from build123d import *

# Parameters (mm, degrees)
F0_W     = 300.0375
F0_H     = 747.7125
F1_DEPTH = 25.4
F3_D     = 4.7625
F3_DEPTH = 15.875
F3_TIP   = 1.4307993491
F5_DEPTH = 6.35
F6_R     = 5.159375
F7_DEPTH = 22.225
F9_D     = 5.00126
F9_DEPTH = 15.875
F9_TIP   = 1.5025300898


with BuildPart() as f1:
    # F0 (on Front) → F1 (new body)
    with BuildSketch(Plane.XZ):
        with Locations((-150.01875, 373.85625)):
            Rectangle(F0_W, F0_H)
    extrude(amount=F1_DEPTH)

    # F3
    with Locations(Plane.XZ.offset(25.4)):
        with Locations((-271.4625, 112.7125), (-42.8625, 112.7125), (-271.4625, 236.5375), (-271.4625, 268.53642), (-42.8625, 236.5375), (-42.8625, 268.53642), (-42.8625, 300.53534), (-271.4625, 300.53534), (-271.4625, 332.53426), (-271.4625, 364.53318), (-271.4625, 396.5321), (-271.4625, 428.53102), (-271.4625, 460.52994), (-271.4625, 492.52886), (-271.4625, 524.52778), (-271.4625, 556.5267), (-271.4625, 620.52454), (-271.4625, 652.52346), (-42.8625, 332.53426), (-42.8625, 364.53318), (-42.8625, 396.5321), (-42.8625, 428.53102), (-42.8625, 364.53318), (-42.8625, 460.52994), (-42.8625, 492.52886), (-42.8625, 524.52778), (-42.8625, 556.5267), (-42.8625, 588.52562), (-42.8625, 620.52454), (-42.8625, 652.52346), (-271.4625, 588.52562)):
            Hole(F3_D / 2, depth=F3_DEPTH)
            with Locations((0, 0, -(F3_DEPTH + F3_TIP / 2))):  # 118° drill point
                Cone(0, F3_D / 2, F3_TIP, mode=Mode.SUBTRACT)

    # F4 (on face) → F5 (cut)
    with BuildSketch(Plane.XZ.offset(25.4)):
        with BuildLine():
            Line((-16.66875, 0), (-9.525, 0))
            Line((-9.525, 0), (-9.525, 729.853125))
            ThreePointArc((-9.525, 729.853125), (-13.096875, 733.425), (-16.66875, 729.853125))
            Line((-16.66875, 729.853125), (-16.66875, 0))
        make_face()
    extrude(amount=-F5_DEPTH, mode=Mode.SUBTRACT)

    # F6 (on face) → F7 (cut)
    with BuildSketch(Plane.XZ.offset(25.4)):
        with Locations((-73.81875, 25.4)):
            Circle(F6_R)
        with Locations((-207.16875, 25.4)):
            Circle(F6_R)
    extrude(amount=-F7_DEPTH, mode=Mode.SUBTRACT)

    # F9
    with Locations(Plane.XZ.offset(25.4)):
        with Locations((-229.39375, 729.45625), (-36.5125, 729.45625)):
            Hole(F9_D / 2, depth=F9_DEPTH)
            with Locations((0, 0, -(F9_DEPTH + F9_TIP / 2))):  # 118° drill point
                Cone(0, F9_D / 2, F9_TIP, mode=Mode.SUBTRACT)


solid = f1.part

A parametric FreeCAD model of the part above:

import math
import FreeCAD as App
import Part
import Sketcher
from FreeCAD import Vector
Q = App.Units.Quantity


def add_polygon(sketch, points):
    """Adds a closed chain of lines whose ends are joined by coincident constraints."""
    first, n = sketch.GeometryCount, len(points)
    for a, b in zip(points, points[1:] + points[:1]):
        sketch.addGeometry(Part.LineSegment(App.Vector(*a, 0), App.Vector(*b, 0)), False)
    for i in range(n):
        sketch.addConstraint(Sketcher.Constraint("Coincident", first + i, 2, first + (i + 1) % n, 1))

doc = App.newDocument("Part")
params = doc.addObject("Spreadsheet::Sheet", "Params")
for row, (alias, value) in enumerate([
    ("sketch1_width", "11.8125 in"),
    ("sketch1_height", "29.4375 in"),
    ("pad1_length", "1 in"),
    ("sketch2_diameter", "0.1875 in"),
    ("hole_diameter", "0.1875 in"),
    ("hole_depth", "0.625 in"),
    ("sketch3_radius", "0.140625 in"),
    ("sketch3_height", "28.734375 in"),
    ("pocket1_length", "0.25 in"),
    ("sketch4_diameter", "0.40625 in"),
    ("pocket2_length", "0.875 in"),
    ("hole2_diameter", "0.1969 in"),
    ("hole2_depth", "0.625 in"),
], start=1):
    params.set(f"A{row}", alias)
    params.set(f"B{row}", "=" + value)
    params.setAlias(f"B{row}", alias)

body = doc.addObject("PartDesign::Body", "Body")

# Sketch on XZ plane
sketch1 = body.newObject("Sketcher::SketchObject", "Sketch")
sketch1.AttachmentSupport = (doc.getObject("XZ_Plane"), [""])
sketch1.MapMode = "FlatFace"
add_polygon(sketch1, [(-300.0375, 747.7125), (-300.0375, 0), (0, 0), (0, 747.7125)])  # lines 0-3
sketch1.addConstraint(Sketcher.Constraint("Vertical", 0))
sketch1.addConstraint(Sketcher.Constraint("Horizontal", 1))
sketch1.addConstraint(Sketcher.Constraint("Vertical", 2))
sketch1.addConstraint(Sketcher.Constraint("Horizontal", 3))
sketch1.addConstraint(Sketcher.Constraint("Coincident", 1, 2, -1, 1))
sketch1.addConstraint(Sketcher.Constraint("DistanceX", 1, 1, 1, 2, Q("11.8125 in")))
sketch1.addConstraint(Sketcher.Constraint("DistanceY", 0, 2, 0, 1, Q("29.4375 in")))
sketch1.setExpression("Constraints[9]", "Params.sketch1_width")
sketch1.setExpression("Constraints[10]", "Params.sketch1_height")
pad1 = body.newObject("PartDesign::Pad", "Pad")
pad1.Profile = sketch1
pad1.setExpression("Length", "Params.pad1_length")

# Sketch on XZ plane
sketch2 = body.newObject("Sketcher::SketchObject", "Sketch001")
sketch2.AttachmentSupport = (doc.getObject("XZ_Plane"), [""])
sketch2.MapMode = "FlatFace"
sketch2.AttachmentOffset = App.Placement(Vector(0, 0, 1 * 25.4), App.Rotation())
sketch2.addGeometry(Part.Circle(Vector(-271.4625, 112.7125, 0), Vector(0, 0, 1), 2.38125), False)
sketch2.addGeometry(Part.Circle(Vector(-42.8625, 112.7125, 0), Vector(0, 0, 1), 2.38125), False)
sketch2.addGeometry(Part.Circle(Vector(-271.4625, 236.5375, 0), Vector(0, 0, 1), 2.38125), False)
sketch2.addGeometry(Part.Circle(Vector(-271.4625, 268.53642, 0), Vector(0, 0, 1), 2.38125), False)
sketch2.addGeometry(Part.Circle(Vector(-42.8625, 236.5375, 0), Vector(0, 0, 1), 2.38125), False)
sketch2.addGeometry(Part.Circle(Vector(-42.8625, 268.53642, 0), Vector(0, 0, 1), 2.38125), False)
sketch2.addGeometry(Part.Circle(Vector(-42.8625, 300.53534, 0), Vector(0, 0, 1), 2.38125), False)
sketch2.addGeometry(Part.Circle(Vector(-271.4625, 300.53534, 0), Vector(0, 0, 1), 2.38125), False)
sketch2.addGeometry(Part.Circle(Vector(-271.4625, 332.53426, 0), Vector(0, 0, 1), 2.38125), False)
sketch2.addGeometry(Part.Circle(Vector(-271.4625, 364.53318, 0), Vector(0, 0, 1), 2.38125), False)
sketch2.addGeometry(Part.Circle(Vector(-271.4625, 396.5321, 0), Vector(0, 0, 1), 2.38125), False)
sketch2.addGeometry(Part.Circle(Vector(-271.4625, 428.53102, 0), Vector(0, 0, 1), 2.38125), False)
sketch2.addGeometry(Part.Circle(Vector(-271.4625, 460.52994, 0), Vector(0, 0, 1), 2.38125), False)
sketch2.addGeometry(Part.Circle(Vector(-271.4625, 492.52886, 0), Vector(0, 0, 1), 2.38125), False)
sketch2.addGeometry(Part.Circle(Vector(-271.4625, 524.52778, 0), Vector(0, 0, 1), 2.38125), False)
sketch2.addGeometry(Part.Circle(Vector(-271.4625, 556.5267, 0), Vector(0, 0, 1), 2.38125), False)
sketch2.addGeometry(Part.Circle(Vector(-271.4625, 620.52454, 0), Vector(0, 0, 1), 2.38125), False)
sketch2.addGeometry(Part.Circle(Vector(-271.4625, 652.52346, 0), Vector(0, 0, 1), 2.38125), False)
sketch2.addGeometry(Part.Circle(Vector(-42.8625, 332.53426, 0), Vector(0, 0, 1), 2.38125), False)
sketch2.addGeometry(Part.Circle(Vector(-42.8625, 364.53318, 0), Vector(0, 0, 1), 2.38125), False)
sketch2.addGeometry(Part.Circle(Vector(-42.8625, 396.5321, 0), Vector(0, 0, 1), 2.38125), False)
sketch2.addGeometry(Part.Circle(Vector(-42.8625, 428.53102, 0), Vector(0, 0, 1), 2.38125), False)
sketch2.addGeometry(Part.Circle(Vector(-42.8625, 364.53318, 0), Vector(0, 0, 1), 2.38125), False)
sketch2.addGeometry(Part.Circle(Vector(-42.8625, 460.52994, 0), Vector(0, 0, 1), 2.38125), False)
sketch2.addGeometry(Part.Circle(Vector(-42.8625, 492.52886, 0), Vector(0, 0, 1), 2.38125), False)
sketch2.addGeometry(Part.Circle(Vector(-42.8625, 524.52778, 0), Vector(0, 0, 1), 2.38125), False)
sketch2.addGeometry(Part.Circle(Vector(-42.8625, 556.5267, 0), Vector(0, 0, 1), 2.38125), False)
sketch2.addGeometry(Part.Circle(Vector(-42.8625, 588.52562, 0), Vector(0, 0, 1), 2.38125), False)
sketch2.addGeometry(Part.Circle(Vector(-42.8625, 620.52454, 0), Vector(0, 0, 1), 2.38125), False)
sketch2.addGeometry(Part.Circle(Vector(-42.8625, 652.52346, 0), Vector(0, 0, 1), 2.38125), False)
sketch2.addGeometry(Part.Circle(Vector(-271.4625, 588.52562, 0), Vector(0, 0, 1), 2.38125), False)
sketch2.addConstraint(Sketcher.Constraint("Coincident", 22, 3, 19, 3))
sketch2.addConstraint(Sketcher.Constraint("Equal", 0, 1))
sketch2.addConstraint(Sketcher.Constraint("Equal", 1, 2))
sketch2.addConstraint(Sketcher.Constraint("Equal", 2, 3))
sketch2.addConstraint(Sketcher.Constraint("Equal", 3, 4))
sketch2.addConstraint(Sketcher.Constraint("Equal", 4, 5))
sketch2.addConstraint(Sketcher.Constraint("Equal", 5, 6))
sketch2.addConstraint(Sketcher.Constraint("Equal", 6, 7))
sketch2.addConstraint(Sketcher.Constraint("Equal", 7, 8))
sketch2.addConstraint(Sketcher.Constraint("Equal", 8, 9))
sketch2.addConstraint(Sketcher.Constraint("Equal", 9, 10))
sketch2.addConstraint(Sketcher.Constraint("Equal", 10, 11))
sketch2.addConstraint(Sketcher.Constraint("Equal", 11, 12))
sketch2.addConstraint(Sketcher.Constraint("Equal", 12, 13))
sketch2.addConstraint(Sketcher.Constraint("Equal", 13, 14))
sketch2.addConstraint(Sketcher.Constraint("Equal", 14, 15))
sketch2.addConstraint(Sketcher.Constraint("Equal", 15, 16))
sketch2.addConstraint(Sketcher.Constraint("Equal", 16, 17))
sketch2.addConstraint(Sketcher.Constraint("Equal", 17, 18))
sketch2.addConstraint(Sketcher.Constraint("Equal", 18, 19))
sketch2.addConstraint(Sketcher.Constraint("Equal", 19, 20))
sketch2.addConstraint(Sketcher.Constraint("Equal", 20, 21))
sketch2.addConstraint(Sketcher.Constraint("Equal", 21, 22))
sketch2.addConstraint(Sketcher.Constraint("Equal", 22, 23))
sketch2.addConstraint(Sketcher.Constraint("Equal", 23, 24))
sketch2.addConstraint(Sketcher.Constraint("Equal", 24, 25))
sketch2.addConstraint(Sketcher.Constraint("Equal", 25, 26))
sketch2.addConstraint(Sketcher.Constraint("Equal", 26, 27))
sketch2.addConstraint(Sketcher.Constraint("Equal", 27, 28))
sketch2.addConstraint(Sketcher.Constraint("Equal", 28, 29))
sketch2.addConstraint(Sketcher.Constraint("Equal", 29, 30))
sketch2.addConstraint(Sketcher.Constraint("Horizontal", 0, 3, 1, 3))
sketch2.addConstraint(Sketcher.Constraint("Horizontal", 2, 3, 4, 3))
sketch2.addConstraint(Sketcher.Constraint("Horizontal", 3, 3, 5, 3))
sketch2.addConstraint(Sketcher.Constraint("Horizontal", 6, 3, 7, 3))
sketch2.addConstraint(Sketcher.Constraint("Horizontal", 8, 3, 18, 3))
sketch2.addConstraint(Sketcher.Constraint("Horizontal", 9, 3, 19, 3))
sketch2.addConstraint(Sketcher.Constraint("Horizontal", 10, 3, 20, 3))
sketch2.addConstraint(Sketcher.Constraint("Horizontal", 11, 3, 21, 3))
sketch2.addConstraint(Sketcher.Constraint("Horizontal", 12, 3, 23, 3))
sketch2.addConstraint(Sketcher.Constraint("Horizontal", 13, 3, 24, 3))
sketch2.addConstraint(Sketcher.Constraint("Horizontal", 14, 3, 25, 3))
sketch2.addConstraint(Sketcher.Constraint("Horizontal", 15, 3, 26, 3))
sketch2.addConstraint(Sketcher.Constraint("Horizontal", 16, 3, 28, 3))
sketch2.addConstraint(Sketcher.Constraint("Horizontal", 17, 3, 29, 3))
sketch2.addConstraint(Sketcher.Constraint("Horizontal", 27, 3, 30, 3))
sketch2.addConstraint(Sketcher.Constraint("Vertical", 0, 3, 2, 3))
sketch2.addConstraint(Sketcher.Constraint("Vertical", 2, 3, 3, 3))
sketch2.addConstraint(Sketcher.Constraint("Vertical", 1, 3, 4, 3))
sketch2.addConstraint(Sketcher.Constraint("Vertical", 4, 3, 5, 3))
sketch2.addConstraint(Sketcher.Constraint("Vertical", 5, 3, 6, 3))
sketch2.addConstraint(Sketcher.Constraint("Vertical", 3, 3, 7, 3))
sketch2.addConstraint(Sketcher.Constraint("Vertical", 7, 3, 8, 3))
sketch2.addConstraint(Sketcher.Constraint("Vertical", 8, 3, 9, 3))
sketch2.addConstraint(Sketcher.Constraint("Vertical", 9, 3, 10, 3))
sketch2.addConstraint(Sketcher.Constraint("Vertical", 10, 3, 11, 3))
sketch2.addConstraint(Sketcher.Constraint("Vertical", 11, 3, 12, 3))
sketch2.addConstraint(Sketcher.Constraint("Vertical", 12, 3, 13, 3))
sketch2.addConstraint(Sketcher.Constraint("Vertical", 13, 3, 14, 3))
sketch2.addConstraint(Sketcher.Constraint("Vertical", 14, 3, 15, 3))
sketch2.addConstraint(Sketcher.Constraint("Vertical", 15, 3, 16, 3))
sketch2.addConstraint(Sketcher.Constraint("Vertical", 16, 3, 17, 3))
sketch2.addConstraint(Sketcher.Constraint("Vertical", 6, 3, 18, 3))
sketch2.addConstraint(Sketcher.Constraint("Vertical", 18, 3, 19, 3))
sketch2.addConstraint(Sketcher.Constraint("Vertical", 19, 3, 20, 3))
sketch2.addConstraint(Sketcher.Constraint("Vertical", 20, 3, 21, 3))
sketch2.addConstraint(Sketcher.Constraint("Vertical", 22, 3, 23, 3))
sketch2.addConstraint(Sketcher.Constraint("Vertical", 23, 3, 24, 3))
sketch2.addConstraint(Sketcher.Constraint("Vertical", 24, 3, 25, 3))
sketch2.addConstraint(Sketcher.Constraint("Vertical", 25, 3, 26, 3))
sketch2.addConstraint(Sketcher.Constraint("Vertical", 26, 3, 27, 3))
sketch2.addConstraint(Sketcher.Constraint("Vertical", 27, 3, 28, 3))
sketch2.addConstraint(Sketcher.Constraint("Vertical", 28, 3, 29, 3))
sketch2.addConstraint(Sketcher.Constraint("Vertical", 17, 3, 30, 3))
sketch2.addConstraint(Sketcher.Constraint("Diameter", 0, Q("0.1875 in")))
sketch2.addConstraint(Sketcher.Constraint("DistanceX", 0, 3, 1, 3, Q("9 in")))
sketch2.addConstraint(Sketcher.Constraint("DistanceX", 0, 3, -1, 1, Q("10.6875 in")))
sketch2.addConstraint(Sketcher.Constraint("DistanceY", -1, 1, 0, 3, Q("4.4375 in")))
sketch2.addConstraint(Sketcher.Constraint("DistanceY", -1, 1, 2, 3, Q("9.3125 in")))
sketch2.addConstraint(Sketcher.Constraint("DistanceY", 2, 3, 10, 3, Q("6.299 in")))
sketch2.addConstraint(Sketcher.Constraint("DistanceY", 3, 3, 11, 3, Q("6.299 in")))
sketch2.addConstraint(Sketcher.Constraint("DistanceY", 7, 3, 12, 3, Q("6.299 in")))
sketch2.addConstraint(Sketcher.Constraint("DistanceY", 8, 3, 13, 3, Q("6.299 in")))
sketch2.addConstraint(Sketcher.Constraint("DistanceY", 9, 3, 14, 3, Q("6.299 in")))
sketch2.addConstraint(Sketcher.Constraint("DistanceY", 10, 3, 15, 3, Q("6.299 in")))
sketch2.addConstraint(Sketcher.Constraint("DistanceY", 12, 3, 16, 3, Q("6.299 in")))
sketch2.addConstraint(Sketcher.Constraint("DistanceY", 13, 3, 17, 3, Q("6.299 in")))
sketch2.addConstraint(Sketcher.Constraint("DistanceY", 21, 3, 27, 3, Q("6.299 in")))
sketch2.addConstraint(Sketcher.Constraint("DistanceY", -1, 1, 3, 3, Q("10.5723 in")))
sketch2.addConstraint(Sketcher.Constraint("DistanceY", -1, 1, 6, 3, Q("11.8321 in")))
sketch2.addConstraint(Sketcher.Constraint("DistanceY", -1, 1, 8, 3, Q("13.0919 in")))
sketch2.addConstraint(Sketcher.Constraint("DistanceY", -1, 1, 9, 3, Q("14.3517 in")))
sketch2.setExpression("Constraints[74]", "Params.sketch2_diameter")
doc.recompute()
hole = body.newObject("PartDesign::Hole", "Hole")
hole.Profile = sketch2
hole.ThreadType = "None"
hole.setExpression("Diameter", "Params.hole_diameter")
hole.DepthType = "Dimension"
hole.setExpression("Depth", "Params.hole_depth")
hole.DrillPoint = "Angled"
hole.DrillPointAngle = 118

# Sketch on XZ plane
sketch3 = body.newObject("Sketcher::SketchObject", "Sketch002")
sketch3.AttachmentSupport = (doc.getObject("XZ_Plane"), [""])
sketch3.MapMode = "FlatFace"
sketch3.AttachmentOffset = App.Placement(Vector(0, 0, 1 * 25.4), App.Rotation())
sketch3.addGeometry(Part.LineSegment(Vector(-16.66875, 0, 0), Vector(-9.525, 0, 0)), False)
sketch3.addGeometry(Part.LineSegment(Vector(-9.525, 0, 0), Vector(-9.525, 729.853125, 0)), False)
sketch3.addGeometry(Part.ArcOfCircle(Part.Circle(Vector(-13.096875, 729.853125, 0), Vector(0, 0, 1), 3.571875), math.radians(0), math.radians(180)), False)
sketch3.addGeometry(Part.LineSegment(Vector(-16.66875, 729.853125, 0), Vector(-16.66875, 0, 0)), False)
sketch3.addConstraint(Sketcher.Constraint("Coincident", 0, 2, 1, 1))
sketch3.addConstraint(Sketcher.Constraint("Tangent", 1, 2, 2, 1))
sketch3.addConstraint(Sketcher.Constraint("Tangent", 2, 2, 3, 1))
sketch3.addConstraint(Sketcher.Constraint("Coincident", 3, 2, 0, 1))
sketch3.addConstraint(Sketcher.Constraint("Horizontal", 0))
sketch3.addConstraint(Sketcher.Constraint("Vertical", 1))
sketch3.addConstraint(Sketcher.Constraint("Vertical", 3))
sketch3.addConstraint(Sketcher.Constraint("PointOnObject", 0, 2, -1))
sketch3.addConstraint(Sketcher.Constraint("Radius", 2, Q("0.140625 in")))
sketch3.addConstraint(Sketcher.Constraint("DistanceY", 1, 1, 1, 2, Q("28.734375 in")))
sketch3.addConstraint(Sketcher.Constraint("DistanceX", 2, 3, -1, 1, Q("0.515625 in")))
sketch3.setExpression("Constraints[8]", "Params.sketch3_radius")
sketch3.setExpression("Constraints[9]", "Params.sketch3_height")
pocket1 = body.newObject("PartDesign::Pocket", "Pocket")
pocket1.Profile = sketch3
pocket1.setExpression("Length", "Params.pocket1_length")

# Sketch on XZ plane
sketch4 = body.newObject("Sketcher::SketchObject", "Sketch003")
sketch4.AttachmentSupport = (doc.getObject("XZ_Plane"), [""])
sketch4.MapMode = "FlatFace"
sketch4.AttachmentOffset = App.Placement(Vector(0, 0, 1 * 25.4), App.Rotation())
sketch4.addGeometry(Part.Circle(Vector(-73.81875, 25.4, 0), Vector(0, 0, 1), 5.159375), False)
sketch4.addGeometry(Part.Circle(Vector(-207.16875, 25.4, 0), Vector(0, 0, 1), 5.159375), False)
sketch4.addConstraint(Sketcher.Constraint("Equal", 0, 1))
sketch4.addConstraint(Sketcher.Constraint("Horizontal", 0, 3, 1, 3))
sketch4.addConstraint(Sketcher.Constraint("Diameter", 0, Q("0.40625 in")))
sketch4.addConstraint(Sketcher.Constraint("DistanceY", -1, 1, 0, 3, Q("1 in")))
sketch4.addConstraint(Sketcher.Constraint("DistanceX", 1, 3, 0, 3, Q("5.25 in")))
sketch4.addConstraint(Sketcher.Constraint("DistanceX", 0, 3, -1, 1, Q("2.90625 in")))
sketch4.setExpression("Constraints[2]", "Params.sketch4_diameter")
pocket2 = body.newObject("PartDesign::Pocket", "Pocket001")
pocket2.Profile = sketch4
pocket2.setExpression("Length", "Params.pocket2_length")

# Sketch on XZ plane
sketch5 = body.newObject("Sketcher::SketchObject", "Sketch004")
sketch5.AttachmentSupport = (doc.getObject("XZ_Plane"), [""])
sketch5.MapMode = "FlatFace"
sketch5.AttachmentOffset = App.Placement(Vector(0, 0, 1 * 25.4), App.Rotation())
sketch5.addGeometry(Part.Circle(Vector(-229.39375, 729.45625, 0), Vector(0, 0, 1), 2.50063), False)
sketch5.addGeometry(Part.Circle(Vector(-36.5125, 729.45625, 0), Vector(0, 0, 1), 2.50063), False)
sketch5.addConstraint(Sketcher.Constraint("Equal", 0, 1))
sketch5.addConstraint(Sketcher.Constraint("Horizontal", 0, 3, 1, 3))
sketch5.addConstraint(Sketcher.Constraint("Diameter", 0, Q("0.1969 in")))
sketch5.addConstraint(Sketcher.Constraint("DistanceX", 0, 3, -1, 1, Q("9.03125 in")))
sketch5.addConstraint(Sketcher.Constraint("DistanceY", -1, 1, 0, 3, Q("28.71875 in")))
sketch5.addConstraint(Sketcher.Constraint("DistanceX", 1, 3, -1, 1, Q("1.4375 in")))
doc.recompute()
hole2 = body.newObject("PartDesign::Hole", "Hole001")
hole2.Profile = sketch5
hole2.ThreadType = "None"
hole2.setExpression("Diameter", "Params.hole2_diameter")
hole2.DepthType = "Dimension"
hole2.setExpression("Depth", "Params.hole2_depth")
hole2.DrillPoint = "Angled"
hole2.DrillPointAngle = 118

doc.recompute()
